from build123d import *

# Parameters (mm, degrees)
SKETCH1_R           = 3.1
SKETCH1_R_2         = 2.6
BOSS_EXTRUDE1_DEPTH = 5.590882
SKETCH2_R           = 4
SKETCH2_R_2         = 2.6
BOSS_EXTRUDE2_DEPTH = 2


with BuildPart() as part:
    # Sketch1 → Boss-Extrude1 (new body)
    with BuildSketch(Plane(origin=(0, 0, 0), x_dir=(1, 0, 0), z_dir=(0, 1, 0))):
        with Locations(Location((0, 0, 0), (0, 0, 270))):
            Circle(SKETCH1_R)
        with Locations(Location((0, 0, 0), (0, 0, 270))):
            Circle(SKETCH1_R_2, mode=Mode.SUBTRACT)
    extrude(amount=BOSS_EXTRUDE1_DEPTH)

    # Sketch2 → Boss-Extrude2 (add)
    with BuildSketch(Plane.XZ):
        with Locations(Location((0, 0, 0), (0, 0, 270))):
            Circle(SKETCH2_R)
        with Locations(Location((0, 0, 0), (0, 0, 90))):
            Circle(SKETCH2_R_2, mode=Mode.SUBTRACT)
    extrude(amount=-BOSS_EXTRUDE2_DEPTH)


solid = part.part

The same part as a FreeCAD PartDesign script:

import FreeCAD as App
import Part
import Sketcher

doc = App.newDocument("Part")
body = doc.addObject("PartDesign::Body", "Body")

# Sketch on XZ plane
sketch1 = body.newObject("Sketcher::SketchObject", "Sketch")
sketch1.AttachmentSupport = (doc.getObject("XZ_Plane"), [""])
sketch1.MapMode = "FlatFace"
sketch1.addGeometry(Part.Circle(App.Vector(0, 0, 0), App.Vector(0, 0, 1), 3.1), False)
sketch1.addGeometry(Part.Circle(App.Vector(0, 0, 0), App.Vector(0, 0, 1), 2.6), False)
sketch1.addConstraint(Sketcher.Constraint("Coincident", 0, 3, -1, 1))
sketch1.addConstraint(Sketcher.Constraint("Coincident", 1, 3, -1, 1))
sketch1.addConstraint(Sketcher.Constraint("Diameter", 0, 6.2))
sketch1.addConstraint(Sketcher.Constraint("Diameter", 1, 5.2))
pad1 = body.newObject("PartDesign::Pad", "Pad")
pad1.Profile = sketch1
pad1.Length = 5.590882
pad1.Reversed = True

# Sketch on XZ plane
sketch2 = body.newObject("Sketcher::SketchObject", "Sketch001")
sketch2.AttachmentSupport = (doc.getObject("XZ_Plane"), [""])
sketch2.MapMode = "FlatFace"
sketch2.addGeometry(Part.Circle(App.Vector(0, 0, 0), App.Vector(0, 0, 1), 4), False)
sketch2.addGeometry(Part.Circle(App.Vector(0, 0, 0), App.Vector(0, 0, 1), 2.6), False)
sketch2.addConstraint(Sketcher.Constraint("Coincident", 0, 3, -1, 1))
sketch2.addConstraint(Sketcher.Constraint("Coincident", 1, 3, -1, 1))
sketch2.addConstraint(Sketcher.Constraint("Diameter", 0, 8.0))
sketch2.addConstraint(Sketcher.Constraint("Diameter", 1, 5.2))
pad2 = body.newObject("PartDesign::Pad", "Pad001")
pad2.Profile = sketch2
pad2.Length = 2
pad2.Reversed = True

doc.recompute()
